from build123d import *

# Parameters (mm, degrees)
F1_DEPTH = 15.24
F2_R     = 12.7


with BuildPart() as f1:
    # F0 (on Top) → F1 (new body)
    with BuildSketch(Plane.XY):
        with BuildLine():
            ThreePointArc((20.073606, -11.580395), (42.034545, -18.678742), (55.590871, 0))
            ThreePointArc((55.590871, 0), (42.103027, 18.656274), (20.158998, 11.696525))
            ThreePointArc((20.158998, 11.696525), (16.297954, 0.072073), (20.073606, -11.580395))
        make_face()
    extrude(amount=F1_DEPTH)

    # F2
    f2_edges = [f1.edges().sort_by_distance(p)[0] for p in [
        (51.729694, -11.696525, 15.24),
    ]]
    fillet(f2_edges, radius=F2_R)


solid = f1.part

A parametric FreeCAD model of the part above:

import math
import FreeCAD as App
import Part
import Sketcher
Q = App.Units.Quantity


def edges_at(feature, points):
    """Names of the edges that pass closest to the given points."""
    edges = feature.Shape.Edges
    near = lambda p: min(range(len(edges)), key=lambda i: edges[i].distToShape(Part.Vertex(*p))[0])
    return sorted({f"Edge{near(p) + 1}" for p in points})

doc = App.newDocument("Part")
params = doc.addObject("Spreadsheet::Sheet", "Params")
for row, (alias, value) in enumerate([
    ("pad1_length", "0.6 in"),
    ("fillet_radius", "0.5 in"),
], start=1):
    params.set(f"A{row}", alias)
    params.set(f"B{row}", "=" + value)
    params.setAlias(f"B{row}", alias)

body = doc.addObject("PartDesign::Body", "Body")

sketch1 = doc.addObject("Sketcher::SketchObject", "Sketch")
body.addObject(sketch1)
sketch1.AttachmentSupport = (doc.XY_Plane, [""])
sketch1.MapMode = "FlatFace"
sketch1.addGeometry([
    Part.ArcOfCircle(Part.Circle(App.Vector(36, 0, 0), App.Vector(0, 0, 1), 20), math.radians(-144), math.radians(0)),
    Part.ArcOfCircle(Part.Circle(App.Vector(36, 0, 0), App.Vector(0, 0, 1), 20), math.radians(0), math.radians(143)),
    Part.ArcOfCircle(Part.Circle(App.Vector(36, 0, 0), App.Vector(0, 0, 1), 20), math.radians(143), math.radians(216)),
], False)
sketch1.addConstraint([
    Sketcher.Constraint("Tangent", 0, 2, 1, 1),
    Sketcher.Constraint("Tangent", 1, 2, 2, 1),
    Sketcher.Constraint("Tangent", 2, 2, 0, 1),
    Sketcher.Constraint("PointOnObject", 0, 3, -1),
    Sketcher.Constraint("PointOnObject", 0, 2, -1),
    Sketcher.Constraint("Radius", 0, Q("19.646525 mm")),
    Sketcher.Constraint("DistanceX", -1, 1, 0, 2, Q("55.590871 mm")),
    Sketcher.Constraint("DistanceX", 1, 2, 1, 3, Q("15.785348 mm")),
    Sketcher.Constraint("DistanceX", 2, 2, 1, 3, Q("15.87074 mm")),
])
pad1 = doc.addObject("PartDesign::Pad", "Pad")
body.addObject(pad1)
pad1.Profile = sketch1
pad1.setExpression("Length", "Params.pad1_length")
doc.recompute()

fillet = doc.addObject("PartDesign::Fillet", "Fillet")
body.addObject(fillet)
fillet.Base = (pad1, edges_at(pad1, [(42.035, -18.679, 15.24)]))
fillet.setExpression("Radius", "Params.fillet_radius")

doc.recompute()
